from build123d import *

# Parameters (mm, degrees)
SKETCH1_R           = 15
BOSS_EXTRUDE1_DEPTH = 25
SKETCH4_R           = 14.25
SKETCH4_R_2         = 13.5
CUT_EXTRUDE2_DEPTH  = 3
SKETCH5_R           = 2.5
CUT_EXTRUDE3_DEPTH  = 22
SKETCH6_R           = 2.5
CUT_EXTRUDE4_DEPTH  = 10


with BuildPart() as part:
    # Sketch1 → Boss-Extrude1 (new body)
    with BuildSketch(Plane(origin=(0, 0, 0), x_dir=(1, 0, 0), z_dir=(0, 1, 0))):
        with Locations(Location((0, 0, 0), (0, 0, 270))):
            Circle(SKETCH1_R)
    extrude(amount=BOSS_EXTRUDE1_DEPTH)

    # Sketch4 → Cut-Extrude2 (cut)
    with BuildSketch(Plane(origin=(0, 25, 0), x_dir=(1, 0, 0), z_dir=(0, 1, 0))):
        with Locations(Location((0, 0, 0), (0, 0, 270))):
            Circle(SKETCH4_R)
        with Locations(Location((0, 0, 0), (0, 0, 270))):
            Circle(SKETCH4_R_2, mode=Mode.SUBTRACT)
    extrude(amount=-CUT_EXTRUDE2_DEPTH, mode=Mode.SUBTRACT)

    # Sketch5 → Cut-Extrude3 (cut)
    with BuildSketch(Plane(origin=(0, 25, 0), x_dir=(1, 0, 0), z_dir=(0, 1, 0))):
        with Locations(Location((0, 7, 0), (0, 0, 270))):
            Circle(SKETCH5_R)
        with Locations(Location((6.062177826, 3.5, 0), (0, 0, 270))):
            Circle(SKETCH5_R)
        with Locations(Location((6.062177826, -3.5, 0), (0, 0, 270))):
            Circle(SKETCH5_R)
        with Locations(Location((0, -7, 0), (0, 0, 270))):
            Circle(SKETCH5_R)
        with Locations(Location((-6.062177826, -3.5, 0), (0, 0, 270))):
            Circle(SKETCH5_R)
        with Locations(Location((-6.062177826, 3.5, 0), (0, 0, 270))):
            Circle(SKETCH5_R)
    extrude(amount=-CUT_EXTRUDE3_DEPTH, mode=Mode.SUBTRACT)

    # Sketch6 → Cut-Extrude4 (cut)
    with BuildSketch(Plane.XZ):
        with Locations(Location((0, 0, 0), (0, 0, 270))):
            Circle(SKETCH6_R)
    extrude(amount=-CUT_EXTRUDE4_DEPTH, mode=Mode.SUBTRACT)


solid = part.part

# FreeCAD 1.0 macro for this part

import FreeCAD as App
import Part
import Sketcher

V = App.Vector

doc = App.newDocument("Part")
body = doc.addObject("PartDesign::Body", "Body")

sketch1 = body.newObject("Sketcher::SketchObject", "Sketch")
sketch1.AttachmentSupport = (doc.getObject("XZ_Plane"), [""])
sketch1.MapMode = "FlatFace"
sketch1.addGeometry(Part.Circle(V(0, 0, 0), V(0, 0, 1), 15), False)
sketch1.addConstraint(Sketcher.Constraint("Coincident", 0, 3, -1, 1))
sketch1.addConstraint(Sketcher.Constraint("Diameter", 0, 30.0))
pad1 = body.newObject("PartDesign::Pad", "Pad")
pad1.Profile = sketch1
pad1.Length = 25
pad1.Reversed = True

sketch2 = body.newObject("Sketcher::SketchObject", "Sketch001")
sketch2.AttachmentSupport = (doc.getObject("XZ_Plane"), [""])
sketch2.MapMode = "FlatFace"
sketch2.AttachmentOffset = App.Placement(V(0, 0, -25), App.Rotation())
sketch2.addGeometry(Part.Circle(V(0, 0, 0), V(0, 0, 1), 14), False)
sketch2.addGeometry(Part.Circle(V(0, 0, 0), V(0, 0, 1), 14), False)
sketch2.addConstraint(Sketcher.Constraint("Coincident", 0, 3, -1, 1))
sketch2.addConstraint(Sketcher.Constraint("Coincident", 1, 3, -1, 1))
sketch2.addConstraint(Sketcher.Constraint("Diameter", 1, 27.0))
sketch2.addConstraint(Sketcher.Constraint("Diameter", 0, 28.5))
pocket1 = body.newObject("PartDesign::Pocket", "Pocket")
pocket1.Profile = sketch2
pocket1.Length = 3
pocket1.Reversed = True

sketch3 = body.newObject("Sketcher::SketchObject", "Sketch002")
sketch3.AttachmentSupport = (doc.getObject("XZ_Plane"), [""])
sketch3.MapMode = "FlatFace"
sketch3.AttachmentOffset = App.Placement(V(0, 0, -25), App.Rotation())
sketch3.addGeometry(Part.Circle(V(0, -7, 0), V(0, 0, 1), 2.5), False)
sketch3.addGeometry(Part.Circle(V(6.1, -3.5, 0), V(0, 0, 1), 2.5), False)
sketch3.addGeometry(Part.Circle(V(6.1, 3.5, 0), V(0, 0, 1), 2.5), False)
sketch3.addGeometry(Part.Circle(V(0, 7, 0), V(0, 0, 1), 2.5), False)
sketch3.addGeometry(Part.Circle(V(-6.1, 3.5, 0), V(0, 0, 1), 2.5), False)
sketch3.addGeometry(Part.Circle(V(-6.1, -3.5, 0), V(0, 0, 1), 2.5), False)
sketch3.addConstraint(Sketcher.Constraint("Equal", 0, 1))
sketch3.addConstraint(Sketcher.Constraint("Equal", 1, 2))
sketch3.addConstraint(Sketcher.Constraint("Equal", 2, 3))
sketch3.addConstraint(Sketcher.Constraint("Equal", 3, 4))
sketch3.addConstraint(Sketcher.Constraint("Equal", 4, 5))
sketch3.addConstraint(Sketcher.Constraint("Symmetric", 0, 3, 3, 3, -1, 1))
sketch3.addConstraint(Sketcher.Constraint("Symmetric", 1, 3, 4, 3, -1, 1))
sketch3.addConstraint(Sketcher.Constraint("Symmetric", 2, 3, 5, 3, -1, 1))
sketch3.addConstraint(Sketcher.Constraint("Symmetric", 2, 3, 4, 3, -2))
sketch3.addConstraint(Sketcher.Constraint("PointOnObject", 0, 3, -2))
sketch3.addConstraint(Sketcher.Constraint("Diameter", 0, 5.0))
sketch3.addConstraint(Sketcher.Constraint("DistanceY", 0, 3, -1, 1, 7.0))
sketch3.addConstraint(Sketcher.Constraint("DistanceY", 1, 3, 2, 3, 7.0))
sketch3.addConstraint(Sketcher.Constraint("DistanceX", -1, 1, 1, 3, 6.062178))
pocket2 = body.newObject("PartDesign::Pocket", "Pocket001")
pocket2.Profile = sketch3
pocket2.Length = 22
pocket2.Reversed = True

sketch4 = body.newObject("Sketcher::SketchObject", "Sketch003")
sketch4.AttachmentSupport = (doc.getObject("XZ_Plane"), [""])
sketch4.MapMode = "FlatFace"
sketch4.addGeometry(Part.Circle(V(0, 0, 0), V(0, 0, 1), 2.5), False)
sketch4.addConstraint(Sketcher.Constraint("Coincident", 0, 3, -1, 1))
sketch4.addConstraint(Sketcher.Constraint("Diameter", 0, 5.0))
pocket3 = body.newObject("PartDesign::Pocket", "Pocket002")
pocket3.Profile = sketch4
pocket3.Length = 10

doc.recompute()
